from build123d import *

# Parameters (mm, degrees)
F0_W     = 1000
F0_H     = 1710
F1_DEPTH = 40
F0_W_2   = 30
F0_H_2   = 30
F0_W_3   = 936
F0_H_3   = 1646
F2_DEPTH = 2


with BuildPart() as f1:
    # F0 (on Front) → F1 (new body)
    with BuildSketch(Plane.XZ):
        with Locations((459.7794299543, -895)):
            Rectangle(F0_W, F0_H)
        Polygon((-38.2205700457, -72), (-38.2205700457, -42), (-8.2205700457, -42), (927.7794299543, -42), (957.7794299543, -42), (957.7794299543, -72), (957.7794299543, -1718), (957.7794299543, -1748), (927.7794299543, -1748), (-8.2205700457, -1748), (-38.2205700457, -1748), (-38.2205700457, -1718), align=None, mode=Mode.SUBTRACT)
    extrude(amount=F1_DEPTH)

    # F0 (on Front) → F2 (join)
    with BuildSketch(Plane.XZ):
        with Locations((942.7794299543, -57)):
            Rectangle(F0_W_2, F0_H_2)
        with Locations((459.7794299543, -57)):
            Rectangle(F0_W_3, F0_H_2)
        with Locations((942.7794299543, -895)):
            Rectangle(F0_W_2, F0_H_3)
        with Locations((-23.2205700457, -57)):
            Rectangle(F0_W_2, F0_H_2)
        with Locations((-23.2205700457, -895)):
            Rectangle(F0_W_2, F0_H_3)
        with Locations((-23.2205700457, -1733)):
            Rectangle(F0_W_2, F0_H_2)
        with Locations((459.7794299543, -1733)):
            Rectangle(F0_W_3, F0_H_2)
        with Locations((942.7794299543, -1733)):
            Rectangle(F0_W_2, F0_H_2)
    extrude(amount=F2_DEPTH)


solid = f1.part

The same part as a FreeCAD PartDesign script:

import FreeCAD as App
import Part
import Sketcher
from FreeCAD import Vector

doc = App.newDocument("Part")
body = doc.addObject("PartDesign::Body", "Body")

# Sketch on XZ plane
sketch1 = doc.addObject("Sketcher::SketchObject", "Sketch")
body.addObject(sketch1)
sketch1.AttachmentSupport = (doc.XZ_Plane, [""])
sketch1.MapMode = "FlatFace"
sketch1.addGeometry(Part.LineSegment(Vector(-40.22057, -40, 0), Vector(-40.22057, -1750, 0)), False)
sketch1.addGeometry(Part.LineSegment(Vector(-40.22057, -1750, 0), Vector(959.77943, -1750, 0)), False)
sketch1.addGeometry(Part.LineSegment(Vector(959.77943, -1750, 0), Vector(959.77943, -40, 0)), False)
sketch1.addGeometry(Part.LineSegment(Vector(959.77943, -40, 0), Vector(-40.22057, -40, 0)), False)
sketch1.addGeometry(Part.LineSegment(Vector(-38.22057, -1748, 0), Vector(-38.22057, -42, 0)), False)
sketch1.addGeometry(Part.LineSegment(Vector(-38.22057, -42, 0), Vector(957.77943, -42, 0)), False)
sketch1.addGeometry(Part.LineSegment(Vector(957.77943, -42, 0), Vector(957.77943, -1748, 0)), False)
sketch1.addGeometry(Part.LineSegment(Vector(957.77943, -1748, 0), Vector(-38.22057, -1748, 0)), False)
sketch1.addConstraint(Sketcher.Constraint("Coincident", 0, 2, 1, 1))
sketch1.addConstraint(Sketcher.Constraint("Coincident", 1, 2, 2, 1))
sketch1.addConstraint(Sketcher.Constraint("Coincident", 2, 2, 3, 1))
sketch1.addConstraint(Sketcher.Constraint("Coincident", 3, 2, 0, 1))
sketch1.addConstraint(Sketcher.Constraint("Coincident", 4, 2, 5, 1))
sketch1.addConstraint(Sketcher.Constraint("Coincident", 5, 2, 6, 1))
sketch1.addConstraint(Sketcher.Constraint("Coincident", 6, 2, 7, 1))
sketch1.addConstraint(Sketcher.Constraint("Coincident", 7, 2, 4, 1))
sketch1.addConstraint(Sketcher.Constraint("Vertical", 0))
sketch1.addConstraint(Sketcher.Constraint("Horizontal", 1))
sketch1.addConstraint(Sketcher.Constraint("Vertical", 2))
sketch1.addConstraint(Sketcher.Constraint("Horizontal", 3))
sketch1.addConstraint(Sketcher.Constraint("Vertical", 4))
sketch1.addConstraint(Sketcher.Constraint("Horizontal", 5))
sketch1.addConstraint(Sketcher.Constraint("Vertical", 6))
sketch1.addConstraint(Sketcher.Constraint("Horizontal", 7))
sketch1.addConstraint(Sketcher.Constraint("DistanceX", 1, 1, 1, 2, 1000.0))
sketch1.addConstraint(Sketcher.Constraint("DistanceX", 5, 1, 5, 2, 996.0))
sketch1.addConstraint(Sketcher.Constraint("DistanceY", 0, 2, 0, 1, 1710.0))
sketch1.addConstraint(Sketcher.Constraint("DistanceY", 4, 1, 4, 2, 1706.0))
sketch1.addConstraint(Sketcher.Constraint("DistanceY", 0, 2, -1, 1, 1750.0))
sketch1.addConstraint(Sketcher.Constraint("DistanceY", 4, 2, -1, 1, 42.0))
sketch1.addConstraint(Sketcher.Constraint("DistanceX", 3, 2, 4, 2, 2.0))
sketch1.addConstraint(Sketcher.Constraint("DistanceX", 0, 2, -1, 1, 40.22057))
pad1 = doc.addObject("PartDesign::Pad", "Pad")
body.addObject(pad1)
pad1.Profile = sketch1
pad1.Length = 40

# Sketch on XZ plane
sketch2 = doc.addObject("Sketcher::SketchObject", "Sketch001")
body.addObject(sketch2)
sketch2.AttachmentSupport = (doc.XZ_Plane, [""])
sketch2.MapMode = "FlatFace"
sketch2.addGeometry(Part.LineSegment(Vector(-38.22057, -1748, 0), Vector(957.77943, -1748, 0)), False)
sketch2.addGeometry(Part.LineSegment(Vector(957.77943, -1748, 0), Vector(957.77943, -42, 0)), False)
sketch2.addGeometry(Part.LineSegment(Vector(957.77943, -42, 0), Vector(-38.22057, -42, 0)), False)
sketch2.addGeometry(Part.LineSegment(Vector(-38.22057, -42, 0), Vector(-38.22057, -1748, 0)), False)
sketch2.addGeometry(Part.LineSegment(Vector(927.77943, -1718, 0), Vector(-8.22057, -1718, 0)), False)
sketch2.addGeometry(Part.LineSegment(Vector(-8.22057, -1718, 0), Vector(-8.22057, -72, 0)), False)
sketch2.addGeometry(Part.LineSegment(Vector(-8.22057, -72, 0), Vector(927.77943, -72, 0)), False)
sketch2.addGeometry(Part.LineSegment(Vector(927.77943, -72, 0), Vector(927.77943, -1718, 0)), False)
sketch2.addConstraint(Sketcher.Constraint("Coincident", 0, 2, 1, 1))
sketch2.addConstraint(Sketcher.Constraint("Coincident", 1, 2, 2, 1))
sketch2.addConstraint(Sketcher.Constraint("Coincident", 2, 2, 3, 1))
sketch2.addConstraint(Sketcher.Constraint("Coincident", 3, 2, 0, 1))
sketch2.addConstraint(Sketcher.Constraint("Coincident", 4, 2, 5, 1))
sketch2.addConstraint(Sketcher.Constraint("Coincident", 5, 2, 6, 1))
sketch2.addConstraint(Sketcher.Constraint("Coincident", 6, 2, 7, 1))
sketch2.addConstraint(Sketcher.Constraint("Coincident", 7, 2, 4, 1))
sketch2.addConstraint(Sketcher.Constraint("Horizontal", 0))
sketch2.addConstraint(Sketcher.Constraint("Vertical", 1))
sketch2.addConstraint(Sketcher.Constraint("Horizontal", 2))
sketch2.addConstraint(Sketcher.Constraint("Vertical", 3))
sketch2.addConstraint(Sketcher.Constraint("Horizontal", 4))
sketch2.addConstraint(Sketcher.Constraint("Vertical", 5))
sketch2.addConstraint(Sketcher.Constraint("Horizontal", 6))
sketch2.addConstraint(Sketcher.Constraint("Vertical", 7))
sketch2.addConstraint(Sketcher.Constraint("DistanceX", 0, 1, 0, 2, 996.0))
sketch2.addConstraint(Sketcher.Constraint("DistanceX", 4, 2, 4, 1, 936.0))
sketch2.addConstraint(Sketcher.Constraint("DistanceY", 1, 1, 1, 2, 1706.0))
sketch2.addConstraint(Sketcher.Constraint("DistanceY", 5, 1, 5, 2, 1646.0))
sketch2.addConstraint(Sketcher.Constraint("DistanceY", 0, 2, -1, 1, 1748.0))
sketch2.addConstraint(Sketcher.Constraint("DistanceY", 4, 2, -1, 1, 1718.0))
sketch2.addConstraint(Sketcher.Constraint("DistanceX", 3, 2, 4, 2, 30.0))
sketch2.addConstraint(Sketcher.Constraint("DistanceX", -1, 1, 0, 2, 957.77943))
pad2 = doc.addObject("PartDesign::Pad", "Pad001")
body.addObject(pad2)
pad2.Profile = sketch2
pad2.Length = 2

doc.recompute()
